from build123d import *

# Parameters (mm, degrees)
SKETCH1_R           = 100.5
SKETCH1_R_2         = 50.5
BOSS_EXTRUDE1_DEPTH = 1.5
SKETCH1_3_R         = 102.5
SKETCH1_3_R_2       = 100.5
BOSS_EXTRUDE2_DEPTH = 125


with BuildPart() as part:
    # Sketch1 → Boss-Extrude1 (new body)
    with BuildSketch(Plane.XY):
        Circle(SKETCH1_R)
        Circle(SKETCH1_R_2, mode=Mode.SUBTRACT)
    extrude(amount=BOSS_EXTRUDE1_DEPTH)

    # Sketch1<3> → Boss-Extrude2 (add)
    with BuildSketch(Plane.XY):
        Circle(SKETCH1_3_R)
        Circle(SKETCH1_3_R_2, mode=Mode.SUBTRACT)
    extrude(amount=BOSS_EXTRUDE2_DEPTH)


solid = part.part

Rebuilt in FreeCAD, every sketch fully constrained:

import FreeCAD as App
import Part
import Sketcher
Q = App.Units.Quantity

doc = App.newDocument("Part")
body = doc.addObject("PartDesign::Body", "Body")

sketch1 = doc.addObject("Sketcher::SketchObject", "Sketch")
body.addObject(sketch1)
sketch1.AttachmentSupport = (doc.XY_Plane, [""])
sketch1.MapMode = "FlatFace"
sketch1.addGeometry(Part.Circle(App.Vector(0, 0, 0), App.Vector(0, 0, 1), 100), False)
sketch1.addGeometry(Part.Circle(App.Vector(0, 0, 0), App.Vector(0, 0, 1), 50), False)
sketch1.addConstraint(Sketcher.Constraint("Coincident", 0, 3, -1, 1))
sketch1.addConstraint(Sketcher.Constraint("Coincident", 1, 3, -1, 1))
sketch1.addConstraint(Sketcher.Constraint("Diameter", 0, Q("201 mm")))
sketch1.addConstraint(Sketcher.Constraint("Diameter", 1, Q("101 mm")))
pad1 = doc.addObject("PartDesign::Pad", "Pad")
body.addObject(pad1)
pad1.Profile = sketch1
pad1.Length = 1.5

sketch2 = doc.addObject("Sketcher::SketchObject", "Sketch001")
body.addObject(sketch2)
sketch2.AttachmentSupport = (doc.XY_Plane, [""])
sketch2.MapMode = "FlatFace"
sketch2.addGeometry(Part.Circle(App.Vector(0, 0, 0), App.Vector(0, 0, 1), 102), False)
sketch2.addGeometry(Part.Circle(App.Vector(0, 0, 0), App.Vector(0, 0, 1), 100), False)
sketch2.addConstraint(Sketcher.Constraint("Coincident", 0, 3, -1, 1))
sketch2.addConstraint(Sketcher.Constraint("Coincident", 1, 3, -1, 1))
sketch2.addConstraint(Sketcher.Constraint("Diameter", 0, Q("205 mm")))
sketch2.addConstraint(Sketcher.Constraint("Diameter", 1, Q("201 mm")))
pad2 = doc.addObject("PartDesign::Pad", "Pad001")
body.addObject(pad2)
pad2.Profile = sketch2
pad2.Length = 125

doc.recompute()
